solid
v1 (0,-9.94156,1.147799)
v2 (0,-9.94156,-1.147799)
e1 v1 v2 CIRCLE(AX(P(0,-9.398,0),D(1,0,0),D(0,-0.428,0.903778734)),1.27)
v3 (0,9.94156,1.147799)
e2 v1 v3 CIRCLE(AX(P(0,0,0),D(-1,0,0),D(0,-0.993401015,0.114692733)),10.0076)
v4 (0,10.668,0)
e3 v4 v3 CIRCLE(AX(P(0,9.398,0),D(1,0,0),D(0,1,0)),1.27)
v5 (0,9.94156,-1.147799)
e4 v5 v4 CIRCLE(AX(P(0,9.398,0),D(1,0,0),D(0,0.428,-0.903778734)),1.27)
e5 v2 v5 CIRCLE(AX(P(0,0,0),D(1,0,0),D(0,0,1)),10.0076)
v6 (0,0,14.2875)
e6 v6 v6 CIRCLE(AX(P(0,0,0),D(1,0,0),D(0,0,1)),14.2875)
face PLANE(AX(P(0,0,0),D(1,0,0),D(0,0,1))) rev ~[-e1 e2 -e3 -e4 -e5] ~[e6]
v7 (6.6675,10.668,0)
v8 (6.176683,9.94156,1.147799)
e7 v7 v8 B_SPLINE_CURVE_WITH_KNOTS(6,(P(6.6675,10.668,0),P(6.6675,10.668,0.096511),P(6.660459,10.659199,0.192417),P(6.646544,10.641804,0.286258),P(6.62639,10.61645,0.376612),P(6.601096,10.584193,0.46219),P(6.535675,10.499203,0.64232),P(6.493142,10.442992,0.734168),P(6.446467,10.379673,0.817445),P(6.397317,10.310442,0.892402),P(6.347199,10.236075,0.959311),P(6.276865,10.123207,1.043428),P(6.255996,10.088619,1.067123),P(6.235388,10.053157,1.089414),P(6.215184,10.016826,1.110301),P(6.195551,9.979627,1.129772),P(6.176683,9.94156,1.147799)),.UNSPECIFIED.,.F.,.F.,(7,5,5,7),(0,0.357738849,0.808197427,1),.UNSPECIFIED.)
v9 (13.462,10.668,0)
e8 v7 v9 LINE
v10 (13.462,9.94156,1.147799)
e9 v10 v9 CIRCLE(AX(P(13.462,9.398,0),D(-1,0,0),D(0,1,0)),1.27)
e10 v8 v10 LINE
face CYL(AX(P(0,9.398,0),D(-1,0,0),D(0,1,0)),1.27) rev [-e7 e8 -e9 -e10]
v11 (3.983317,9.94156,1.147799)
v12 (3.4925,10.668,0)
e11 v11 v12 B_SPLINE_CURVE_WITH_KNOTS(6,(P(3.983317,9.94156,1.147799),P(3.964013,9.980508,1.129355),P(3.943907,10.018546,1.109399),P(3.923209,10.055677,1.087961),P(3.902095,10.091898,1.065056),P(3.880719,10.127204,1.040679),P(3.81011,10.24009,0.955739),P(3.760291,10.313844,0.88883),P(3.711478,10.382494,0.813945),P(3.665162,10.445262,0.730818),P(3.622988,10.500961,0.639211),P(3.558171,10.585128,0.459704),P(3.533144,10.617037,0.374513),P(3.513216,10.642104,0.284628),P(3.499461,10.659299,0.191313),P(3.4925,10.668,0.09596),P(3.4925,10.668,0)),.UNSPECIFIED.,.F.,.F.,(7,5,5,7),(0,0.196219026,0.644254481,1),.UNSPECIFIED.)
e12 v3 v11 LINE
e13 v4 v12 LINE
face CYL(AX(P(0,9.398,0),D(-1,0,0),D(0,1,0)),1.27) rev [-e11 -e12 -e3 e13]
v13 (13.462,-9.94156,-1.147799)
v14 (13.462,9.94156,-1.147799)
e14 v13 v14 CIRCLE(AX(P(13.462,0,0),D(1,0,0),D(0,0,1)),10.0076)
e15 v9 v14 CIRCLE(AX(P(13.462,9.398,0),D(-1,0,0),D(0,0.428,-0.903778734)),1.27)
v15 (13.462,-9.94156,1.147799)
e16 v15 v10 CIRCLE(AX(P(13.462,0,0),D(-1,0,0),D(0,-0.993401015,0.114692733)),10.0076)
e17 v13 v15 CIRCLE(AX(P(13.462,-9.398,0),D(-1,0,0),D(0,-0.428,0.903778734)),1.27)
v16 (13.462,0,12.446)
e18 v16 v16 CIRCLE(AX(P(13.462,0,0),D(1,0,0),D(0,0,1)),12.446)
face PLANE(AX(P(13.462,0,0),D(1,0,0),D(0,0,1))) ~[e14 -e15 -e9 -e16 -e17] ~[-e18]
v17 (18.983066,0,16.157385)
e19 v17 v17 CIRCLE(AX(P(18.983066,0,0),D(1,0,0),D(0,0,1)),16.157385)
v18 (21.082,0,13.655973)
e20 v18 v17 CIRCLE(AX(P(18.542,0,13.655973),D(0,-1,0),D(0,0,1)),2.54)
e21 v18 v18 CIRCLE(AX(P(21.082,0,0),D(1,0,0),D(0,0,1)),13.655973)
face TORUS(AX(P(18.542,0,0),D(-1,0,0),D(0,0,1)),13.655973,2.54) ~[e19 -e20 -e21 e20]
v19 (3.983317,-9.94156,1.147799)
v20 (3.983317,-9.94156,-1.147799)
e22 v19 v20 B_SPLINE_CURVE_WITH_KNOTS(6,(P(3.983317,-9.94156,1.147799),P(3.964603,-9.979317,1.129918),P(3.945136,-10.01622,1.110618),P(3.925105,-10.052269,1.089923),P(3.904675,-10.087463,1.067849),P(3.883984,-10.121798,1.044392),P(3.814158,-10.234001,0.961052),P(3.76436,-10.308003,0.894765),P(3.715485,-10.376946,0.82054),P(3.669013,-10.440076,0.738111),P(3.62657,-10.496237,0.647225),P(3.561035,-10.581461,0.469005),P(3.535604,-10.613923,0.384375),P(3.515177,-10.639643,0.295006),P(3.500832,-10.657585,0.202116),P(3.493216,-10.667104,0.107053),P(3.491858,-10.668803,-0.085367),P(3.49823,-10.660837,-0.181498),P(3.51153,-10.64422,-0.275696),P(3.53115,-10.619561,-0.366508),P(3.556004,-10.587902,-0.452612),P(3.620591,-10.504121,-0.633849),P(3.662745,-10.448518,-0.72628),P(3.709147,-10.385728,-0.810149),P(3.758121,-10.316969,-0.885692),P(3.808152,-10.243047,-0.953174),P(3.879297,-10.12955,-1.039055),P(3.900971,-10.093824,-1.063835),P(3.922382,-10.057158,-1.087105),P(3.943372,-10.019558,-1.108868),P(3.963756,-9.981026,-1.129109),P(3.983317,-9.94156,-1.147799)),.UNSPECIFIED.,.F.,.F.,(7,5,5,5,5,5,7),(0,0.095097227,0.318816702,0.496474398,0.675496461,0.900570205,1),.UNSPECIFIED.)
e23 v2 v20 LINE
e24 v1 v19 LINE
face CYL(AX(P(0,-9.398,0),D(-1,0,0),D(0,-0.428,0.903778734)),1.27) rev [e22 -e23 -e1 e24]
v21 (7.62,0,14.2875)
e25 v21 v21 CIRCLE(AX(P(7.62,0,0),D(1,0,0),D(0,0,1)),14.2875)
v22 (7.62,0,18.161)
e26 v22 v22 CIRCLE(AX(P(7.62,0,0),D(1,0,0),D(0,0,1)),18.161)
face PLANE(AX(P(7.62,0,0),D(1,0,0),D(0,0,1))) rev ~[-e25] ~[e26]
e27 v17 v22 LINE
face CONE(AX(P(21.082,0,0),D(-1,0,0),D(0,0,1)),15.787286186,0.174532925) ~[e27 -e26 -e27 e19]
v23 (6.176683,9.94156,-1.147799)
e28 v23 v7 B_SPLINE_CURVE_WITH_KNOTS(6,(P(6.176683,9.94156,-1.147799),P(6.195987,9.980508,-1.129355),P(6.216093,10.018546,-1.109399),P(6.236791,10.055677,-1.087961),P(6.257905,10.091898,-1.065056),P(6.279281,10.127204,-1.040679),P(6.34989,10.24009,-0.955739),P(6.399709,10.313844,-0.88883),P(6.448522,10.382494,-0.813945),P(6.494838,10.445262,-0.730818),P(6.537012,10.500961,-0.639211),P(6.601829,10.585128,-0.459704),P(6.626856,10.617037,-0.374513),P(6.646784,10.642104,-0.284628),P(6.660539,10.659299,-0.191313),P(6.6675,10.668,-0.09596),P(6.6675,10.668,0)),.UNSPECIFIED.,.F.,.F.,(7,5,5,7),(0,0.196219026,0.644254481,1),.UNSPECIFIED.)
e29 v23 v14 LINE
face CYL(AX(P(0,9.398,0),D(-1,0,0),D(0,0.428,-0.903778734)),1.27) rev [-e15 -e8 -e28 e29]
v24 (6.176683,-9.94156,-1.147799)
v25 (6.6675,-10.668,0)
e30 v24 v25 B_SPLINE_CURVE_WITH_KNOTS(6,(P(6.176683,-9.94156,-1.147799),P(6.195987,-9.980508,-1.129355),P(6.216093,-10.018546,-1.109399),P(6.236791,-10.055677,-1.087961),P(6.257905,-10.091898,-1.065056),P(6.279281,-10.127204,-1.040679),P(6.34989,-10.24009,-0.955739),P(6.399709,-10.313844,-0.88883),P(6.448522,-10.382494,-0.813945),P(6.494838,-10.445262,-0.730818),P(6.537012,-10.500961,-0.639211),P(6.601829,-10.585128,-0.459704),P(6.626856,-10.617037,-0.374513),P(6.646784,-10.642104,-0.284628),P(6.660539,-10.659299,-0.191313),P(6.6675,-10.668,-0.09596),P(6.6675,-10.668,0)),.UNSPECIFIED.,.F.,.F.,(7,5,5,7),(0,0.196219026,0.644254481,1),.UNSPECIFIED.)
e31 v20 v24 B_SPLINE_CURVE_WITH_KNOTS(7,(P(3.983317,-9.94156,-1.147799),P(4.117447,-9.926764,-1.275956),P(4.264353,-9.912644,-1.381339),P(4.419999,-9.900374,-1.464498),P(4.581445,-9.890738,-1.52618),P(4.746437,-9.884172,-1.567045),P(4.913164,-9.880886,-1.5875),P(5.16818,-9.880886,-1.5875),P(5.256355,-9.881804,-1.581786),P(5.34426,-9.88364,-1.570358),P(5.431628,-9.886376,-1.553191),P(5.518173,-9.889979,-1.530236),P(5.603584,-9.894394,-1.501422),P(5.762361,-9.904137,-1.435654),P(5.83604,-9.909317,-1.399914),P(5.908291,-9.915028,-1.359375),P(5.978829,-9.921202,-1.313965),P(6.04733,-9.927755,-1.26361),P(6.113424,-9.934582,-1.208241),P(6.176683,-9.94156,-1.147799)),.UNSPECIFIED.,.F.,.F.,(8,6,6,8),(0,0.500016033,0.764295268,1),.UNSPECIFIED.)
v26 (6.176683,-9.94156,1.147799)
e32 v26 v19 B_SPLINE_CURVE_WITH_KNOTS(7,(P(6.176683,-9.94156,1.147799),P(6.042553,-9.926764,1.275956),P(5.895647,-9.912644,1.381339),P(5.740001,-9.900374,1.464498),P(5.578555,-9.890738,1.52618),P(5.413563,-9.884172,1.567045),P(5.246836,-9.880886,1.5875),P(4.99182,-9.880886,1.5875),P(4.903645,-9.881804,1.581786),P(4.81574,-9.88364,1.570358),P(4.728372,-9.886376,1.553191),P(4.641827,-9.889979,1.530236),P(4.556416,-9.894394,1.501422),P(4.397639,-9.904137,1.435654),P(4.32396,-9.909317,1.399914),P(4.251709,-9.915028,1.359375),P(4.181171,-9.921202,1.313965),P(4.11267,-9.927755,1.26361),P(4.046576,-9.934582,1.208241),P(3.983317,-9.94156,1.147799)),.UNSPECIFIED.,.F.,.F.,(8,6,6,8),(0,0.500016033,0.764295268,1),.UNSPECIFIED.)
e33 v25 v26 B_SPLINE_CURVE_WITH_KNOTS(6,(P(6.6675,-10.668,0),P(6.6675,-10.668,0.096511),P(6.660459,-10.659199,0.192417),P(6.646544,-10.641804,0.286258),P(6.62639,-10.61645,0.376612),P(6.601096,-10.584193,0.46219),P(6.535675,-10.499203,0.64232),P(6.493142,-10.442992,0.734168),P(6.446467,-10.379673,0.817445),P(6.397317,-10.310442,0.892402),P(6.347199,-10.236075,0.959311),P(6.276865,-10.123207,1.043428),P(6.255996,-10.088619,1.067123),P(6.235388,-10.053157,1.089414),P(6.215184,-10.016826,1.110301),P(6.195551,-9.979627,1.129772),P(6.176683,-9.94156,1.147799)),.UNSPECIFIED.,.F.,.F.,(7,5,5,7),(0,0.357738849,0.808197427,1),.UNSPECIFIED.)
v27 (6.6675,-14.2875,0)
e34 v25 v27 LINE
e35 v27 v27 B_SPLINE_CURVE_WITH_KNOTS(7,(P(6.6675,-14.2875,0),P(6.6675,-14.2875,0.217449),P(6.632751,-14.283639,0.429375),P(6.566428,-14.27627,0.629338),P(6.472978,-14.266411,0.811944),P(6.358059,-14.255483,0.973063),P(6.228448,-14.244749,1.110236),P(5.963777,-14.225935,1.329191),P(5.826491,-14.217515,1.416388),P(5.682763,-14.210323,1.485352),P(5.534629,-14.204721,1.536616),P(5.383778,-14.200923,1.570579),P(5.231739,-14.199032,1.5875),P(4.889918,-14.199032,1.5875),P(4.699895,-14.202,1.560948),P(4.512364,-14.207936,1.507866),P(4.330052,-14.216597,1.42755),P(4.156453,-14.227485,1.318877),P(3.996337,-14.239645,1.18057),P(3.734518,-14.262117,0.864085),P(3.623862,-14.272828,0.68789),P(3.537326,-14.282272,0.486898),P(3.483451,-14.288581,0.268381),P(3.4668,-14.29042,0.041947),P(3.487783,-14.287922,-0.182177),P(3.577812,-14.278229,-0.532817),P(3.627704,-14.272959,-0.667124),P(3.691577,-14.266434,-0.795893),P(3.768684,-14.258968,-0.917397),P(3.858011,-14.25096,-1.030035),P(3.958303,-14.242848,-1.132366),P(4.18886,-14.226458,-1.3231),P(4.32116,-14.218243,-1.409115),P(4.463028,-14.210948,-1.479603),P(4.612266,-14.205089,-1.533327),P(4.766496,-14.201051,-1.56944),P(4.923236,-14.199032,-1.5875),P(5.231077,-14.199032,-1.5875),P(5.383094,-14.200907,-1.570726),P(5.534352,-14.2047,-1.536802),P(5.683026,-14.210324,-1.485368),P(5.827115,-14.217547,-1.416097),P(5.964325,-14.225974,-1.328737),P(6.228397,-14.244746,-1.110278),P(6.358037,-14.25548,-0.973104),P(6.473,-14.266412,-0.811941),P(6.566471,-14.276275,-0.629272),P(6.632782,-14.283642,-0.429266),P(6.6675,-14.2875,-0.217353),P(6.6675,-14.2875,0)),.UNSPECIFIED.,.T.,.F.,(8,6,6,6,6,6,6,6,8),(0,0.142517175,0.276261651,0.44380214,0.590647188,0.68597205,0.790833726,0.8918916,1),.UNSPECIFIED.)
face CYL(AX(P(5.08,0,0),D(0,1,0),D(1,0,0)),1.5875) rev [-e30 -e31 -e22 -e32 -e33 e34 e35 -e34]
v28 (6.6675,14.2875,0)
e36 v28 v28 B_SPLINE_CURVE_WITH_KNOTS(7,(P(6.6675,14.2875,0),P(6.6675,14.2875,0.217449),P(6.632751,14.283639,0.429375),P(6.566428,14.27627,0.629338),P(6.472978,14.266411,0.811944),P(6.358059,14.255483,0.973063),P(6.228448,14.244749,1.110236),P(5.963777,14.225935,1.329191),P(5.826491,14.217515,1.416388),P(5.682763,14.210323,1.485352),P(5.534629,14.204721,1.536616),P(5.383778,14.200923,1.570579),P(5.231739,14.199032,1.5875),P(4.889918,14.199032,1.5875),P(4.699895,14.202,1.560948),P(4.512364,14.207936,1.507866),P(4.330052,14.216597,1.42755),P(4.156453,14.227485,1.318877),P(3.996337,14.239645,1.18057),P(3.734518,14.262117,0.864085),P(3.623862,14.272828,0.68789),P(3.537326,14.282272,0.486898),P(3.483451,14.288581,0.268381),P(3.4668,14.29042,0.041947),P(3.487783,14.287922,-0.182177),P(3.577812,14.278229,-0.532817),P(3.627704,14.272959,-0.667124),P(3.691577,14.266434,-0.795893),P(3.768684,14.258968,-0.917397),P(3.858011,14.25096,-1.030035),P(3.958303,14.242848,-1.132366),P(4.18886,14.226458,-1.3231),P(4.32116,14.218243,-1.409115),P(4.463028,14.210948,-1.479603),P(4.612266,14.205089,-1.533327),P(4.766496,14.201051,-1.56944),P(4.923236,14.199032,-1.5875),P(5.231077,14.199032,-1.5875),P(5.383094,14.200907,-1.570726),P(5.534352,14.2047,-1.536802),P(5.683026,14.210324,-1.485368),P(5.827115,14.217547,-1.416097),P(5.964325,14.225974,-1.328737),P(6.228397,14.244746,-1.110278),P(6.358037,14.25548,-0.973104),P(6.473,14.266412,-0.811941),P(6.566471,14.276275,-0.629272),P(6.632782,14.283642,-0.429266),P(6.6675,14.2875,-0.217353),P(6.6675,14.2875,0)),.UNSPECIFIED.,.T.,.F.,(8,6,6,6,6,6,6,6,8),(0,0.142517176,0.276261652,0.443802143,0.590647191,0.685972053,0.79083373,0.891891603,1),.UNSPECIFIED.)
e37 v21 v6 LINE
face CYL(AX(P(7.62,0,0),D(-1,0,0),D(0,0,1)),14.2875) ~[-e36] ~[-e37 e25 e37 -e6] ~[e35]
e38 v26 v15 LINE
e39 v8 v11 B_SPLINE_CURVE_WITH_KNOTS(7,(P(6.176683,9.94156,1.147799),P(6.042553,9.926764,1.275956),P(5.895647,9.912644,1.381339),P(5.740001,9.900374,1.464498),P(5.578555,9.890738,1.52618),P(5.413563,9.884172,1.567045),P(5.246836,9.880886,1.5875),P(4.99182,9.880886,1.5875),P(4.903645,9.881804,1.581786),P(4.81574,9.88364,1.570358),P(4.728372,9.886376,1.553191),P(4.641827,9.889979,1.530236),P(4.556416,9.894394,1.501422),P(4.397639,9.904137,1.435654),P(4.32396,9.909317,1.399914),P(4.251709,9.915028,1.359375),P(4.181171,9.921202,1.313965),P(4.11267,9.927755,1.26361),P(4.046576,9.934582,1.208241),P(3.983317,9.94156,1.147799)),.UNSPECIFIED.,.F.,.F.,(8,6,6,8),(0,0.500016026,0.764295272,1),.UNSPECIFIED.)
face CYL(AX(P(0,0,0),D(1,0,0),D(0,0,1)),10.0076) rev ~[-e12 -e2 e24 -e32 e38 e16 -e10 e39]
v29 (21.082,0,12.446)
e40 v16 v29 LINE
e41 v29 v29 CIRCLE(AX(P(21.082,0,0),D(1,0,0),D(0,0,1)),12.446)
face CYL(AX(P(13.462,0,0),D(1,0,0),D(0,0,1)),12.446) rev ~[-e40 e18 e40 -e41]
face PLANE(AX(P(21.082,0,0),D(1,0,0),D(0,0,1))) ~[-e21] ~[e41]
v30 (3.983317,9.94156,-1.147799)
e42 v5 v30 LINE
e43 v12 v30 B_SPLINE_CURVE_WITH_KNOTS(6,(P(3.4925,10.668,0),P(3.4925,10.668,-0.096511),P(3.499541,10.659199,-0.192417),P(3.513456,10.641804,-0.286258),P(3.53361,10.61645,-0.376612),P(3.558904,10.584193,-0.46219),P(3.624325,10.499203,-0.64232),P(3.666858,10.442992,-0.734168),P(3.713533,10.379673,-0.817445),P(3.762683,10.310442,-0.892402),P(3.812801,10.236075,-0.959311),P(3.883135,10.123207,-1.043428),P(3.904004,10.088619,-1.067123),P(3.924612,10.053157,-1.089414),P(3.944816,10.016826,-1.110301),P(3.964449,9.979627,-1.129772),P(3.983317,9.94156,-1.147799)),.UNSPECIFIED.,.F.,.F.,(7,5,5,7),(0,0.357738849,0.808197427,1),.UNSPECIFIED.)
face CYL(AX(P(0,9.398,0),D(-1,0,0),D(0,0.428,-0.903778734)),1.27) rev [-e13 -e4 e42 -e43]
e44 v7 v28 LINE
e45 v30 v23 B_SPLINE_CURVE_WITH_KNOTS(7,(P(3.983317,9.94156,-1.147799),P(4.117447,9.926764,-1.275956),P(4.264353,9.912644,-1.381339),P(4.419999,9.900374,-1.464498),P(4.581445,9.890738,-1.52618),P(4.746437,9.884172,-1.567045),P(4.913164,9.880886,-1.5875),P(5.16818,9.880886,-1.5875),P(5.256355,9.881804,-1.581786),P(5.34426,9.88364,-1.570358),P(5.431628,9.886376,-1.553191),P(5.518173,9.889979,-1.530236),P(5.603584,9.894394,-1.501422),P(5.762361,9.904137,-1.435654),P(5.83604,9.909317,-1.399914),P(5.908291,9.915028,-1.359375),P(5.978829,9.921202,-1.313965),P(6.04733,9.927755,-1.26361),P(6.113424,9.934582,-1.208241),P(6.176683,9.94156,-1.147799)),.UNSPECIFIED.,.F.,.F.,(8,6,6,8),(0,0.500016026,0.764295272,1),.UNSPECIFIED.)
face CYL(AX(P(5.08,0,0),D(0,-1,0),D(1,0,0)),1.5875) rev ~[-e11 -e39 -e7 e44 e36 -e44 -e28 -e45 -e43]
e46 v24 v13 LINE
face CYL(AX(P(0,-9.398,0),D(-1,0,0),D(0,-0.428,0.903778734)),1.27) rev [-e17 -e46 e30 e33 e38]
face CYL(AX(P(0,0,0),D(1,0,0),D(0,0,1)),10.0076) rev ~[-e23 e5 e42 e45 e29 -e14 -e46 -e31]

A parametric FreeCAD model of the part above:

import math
import FreeCAD as App
import Part
import Sketcher

V = App.Vector
Q = App.Units.Quantity


def edges_at(feature, points):
    """Names of the edges that pass closest to the given points."""
    edges = feature.Shape.Edges
    near = lambda p: min(range(len(edges)), key=lambda i: edges[i].distToShape(Part.Vertex(*p))[0])
    return sorted({f"Edge{near(p) + 1}" for p in points})

doc = App.newDocument("Part")
params = doc.addObject("Spreadsheet::Sheet", "Params")
for row, (alias, value) in enumerate([
    ("sketch1_width", "0.3 in"),
    ("sketch1_width2", "0.53 in"),
    ("sketch1_height", "0.096 in"),
    ("revolution_angle", "360 deg"),
    ("fillet_radius", "0.1 in"),
    ("sketch2_radius", "0.05 in"),
    ("sketch2_radius2", "0.394 in"),
    ("sketch3_diameter", "0.125 in"),
], start=1):
    params.set(f"A{row}", alias)
    params.set(f"B{row}", "=" + value)
    params.setAlias(f"B{row}", alias)

body = doc.addObject("PartDesign::Body", "Body")

sketch1 = body.newObject("Sketcher::SketchObject", "Sketch")
sketch1.AttachmentSupport = (doc.getObject("XZ_Plane"), [""])
sketch1.MapMode = "FlatFace"
sketch1.addGeometry(Part.LineSegment(V(7.6, 18.2, 0), V(7.6, 14.3, 0)), False)
sketch1.addGeometry(Part.LineSegment(V(7.6, 14.3, 0), V(0, 14.3, 0)), False)
sketch1.addGeometry(Part.LineSegment(V(0, 14.3, 0), V(0, 10, 0)), False)
sketch1.addGeometry(Part.LineSegment(V(0, 10, 0), V(13.5, 10, 0)), False)
sketch1.addGeometry(Part.LineSegment(V(13.5, 10, 0), V(13.5, 12.4, 0)), False)
sketch1.addGeometry(Part.LineSegment(V(13.5, 12.4, 0), V(21.1, 12.4, 0)), False)
sketch1.addGeometry(Part.LineSegment(V(21.1, 12.4, 0), V(21.1, 15.8, 0)), False)
sketch1.addGeometry(Part.LineSegment(V(21.1, 15.8, 0), V(7.6, 18.2, 0)), False)
sketch1.addConstraint(Sketcher.Constraint("Coincident", 0, 2, 1, 1))
sketch1.addConstraint(Sketcher.Constraint("Coincident", 1, 2, 2, 1))
sketch1.addConstraint(Sketcher.Constraint("Coincident", 2, 2, 3, 1))
sketch1.addConstraint(Sketcher.Constraint("Coincident", 3, 2, 4, 1))
sketch1.addConstraint(Sketcher.Constraint("Coincident", 4, 2, 5, 1))
sketch1.addConstraint(Sketcher.Constraint("Coincident", 5, 2, 6, 1))
sketch1.addConstraint(Sketcher.Constraint("Coincident", 6, 2, 7, 1))
sketch1.addConstraint(Sketcher.Constraint("Coincident", 7, 2, 0, 1))
sketch1.addConstraint(Sketcher.Constraint("Vertical", 0))
sketch1.addConstraint(Sketcher.Constraint("Horizontal", 1))
sketch1.addConstraint(Sketcher.Constraint("Vertical", 2))
sketch1.addConstraint(Sketcher.Constraint("Horizontal", 3))
sketch1.addConstraint(Sketcher.Constraint("Vertical", 4))
sketch1.addConstraint(Sketcher.Constraint("Horizontal", 5))
sketch1.addConstraint(Sketcher.Constraint("Vertical", 6))
sketch1.addConstraint(Sketcher.Constraint("PointOnObject", 1, 2, -2))
sketch1.addConstraint(Sketcher.Constraint("Equal", 1, 5))
sketch1.addConstraint(Sketcher.Constraint("DistanceX", 1, 2, 1, 1, Q("0.3 in")))
sketch1.addConstraint(Sketcher.Constraint("Angle", 7, Q("170 deg")))
sketch1.addConstraint(Sketcher.Constraint("DistanceX", 3, 1, 3, 2, Q("0.53 in")))
sketch1.addConstraint(Sketcher.Constraint("DistanceY", 4, 1, 4, 2, Q("0.096 in")))
sketch1.addConstraint(Sketcher.Constraint("DistanceY", -1, 1, 4, 2, Q("0.49 in")))
sketch1.addConstraint(Sketcher.Constraint("DistanceY", 0, 2, 0, 1, Q("0.1525 in")))
sketch1.addConstraint(Sketcher.Constraint("DistanceY", 2, 2, 2, 1, Q("0.1685 in")))
sketch1.setExpression("Constraints[17]", "Params.sketch1_width")
sketch1.setExpression("Constraints[19]", "Params.sketch1_width2")
sketch1.setExpression("Constraints[20]", "Params.sketch1_height")
revolution = body.newObject("PartDesign::Revolution", "Revolution")
revolution.Profile = sketch1
revolution.ReferenceAxis = (sketch1, ["H_Axis"])
revolution.setExpression("Angle", "Params.revolution_angle")
doc.recompute()

fillet = body.newObject("PartDesign::Fillet", "Fillet")
fillet.Base = (revolution, edges_at(revolution, [(21.082, 0, -15.787)]))
fillet.setExpression("Radius", "Params.fillet_radius")

sketch2 = body.newObject("Sketcher::SketchObject", "Sketch001")
sketch2.AttachmentSupport = (doc.getObject("YZ_Plane"), [""])
sketch2.MapMode = "FlatFace"
sketch2.addGeometry(Part.ArcOfCircle(Part.Circle(V(0, 0, 0), V(0, 0, 1), 10), math.radians(173.41), math.radians(186.59)), False)
sketch2.addGeometry(Part.ArcOfCircle(Part.Circle(V(-9.4, 0, 0), V(0, 0, 1), 1.3), math.radians(115), math.radians(245)), False)
sketch2.addGeometry(Part.ArcOfCircle(Part.Circle(V(0, 0, 0), V(0, 0, 1), 10), math.radians(0), math.radians(6.59)), False)
sketch2.addGeometry(Part.ArcOfCircle(Part.Circle(V(0, 0, 0), V(0, 0, 1), 10), math.radians(-6.59), math.radians(0)), False)
sketch2.addGeometry(Part.ArcOfCircle(Part.Circle(V(9.4, 0, 0), V(0, 0, 1), 1.3), math.radians(-65), math.radians(0)), False)
sketch2.addGeometry(Part.ArcOfCircle(Part.Circle(V(9.4, 0, 0), V(0, 0, 1), 1.3), math.radians(0), math.radians(65)), False)
sketch2.addConstraint(Sketcher.Constraint("Coincident", 0, 1, 1, 1))
sketch2.addConstraint(Sketcher.Constraint("Coincident", 1, 2, 0, 2))
sketch2.addConstraint(Sketcher.Constraint("Tangent", 2, 1, 3, 2))
sketch2.addConstraint(Sketcher.Constraint("Coincident", 3, 1, 4, 1))
sketch2.addConstraint(Sketcher.Constraint("Tangent", 4, 2, 5, 1))
sketch2.addConstraint(Sketcher.Constraint("Coincident", 5, 2, 2, 2))
sketch2.addConstraint(Sketcher.Constraint("Coincident", 0, 3, -1, 1))
sketch2.addConstraint(Sketcher.Constraint("Coincident", 2, 3, -1, 1))
sketch2.addConstraint(Sketcher.Constraint("Equal", 0, 2))
sketch2.addConstraint(Sketcher.Constraint("Equal", 2, 3))
sketch2.addConstraint(Sketcher.Constraint("Equal", 1, 4))
sketch2.addConstraint(Sketcher.Constraint("Equal", 4, 5))
sketch2.addConstraint(Sketcher.Constraint("Symmetric", 1, 3, 4, 3, -1, 1))
sketch2.addConstraint(Sketcher.Constraint("PointOnObject", 1, 3, -1))
sketch2.addConstraint(Sketcher.Constraint("PointOnObject", 2, 1, -1))
sketch2.addConstraint(Sketcher.Constraint("PointOnObject", 4, 2, -1))
sketch2.addConstraint(Sketcher.Constraint("Radius", 1, Q("0.05 in")))
sketch2.addConstraint(Sketcher.Constraint("Radius", 0, Q("0.394 in")))
sketch2.addConstraint(Sketcher.Constraint("DistanceX", 1, 3, -1, 1, Q("0.37 in")))
sketch2.setExpression("Constraints[16]", "Params.sketch2_radius")
sketch2.setExpression("Constraints[17]", "Params.sketch2_radius2")
pocket1 = body.newObject("PartDesign::Pocket", "Pocket")
pocket1.Profile = sketch2
pocket1.Type = "ThroughAll"
pocket1.Reversed = True

sketch3 = body.newObject("Sketcher::SketchObject", "Sketch002")
sketch3.AttachmentSupport = (doc.getObject("XZ_Plane"), [""])
sketch3.MapMode = "FlatFace"
sketch3.addGeometry(Part.Circle(V(5.1, 0, 0), V(0, 0, 1), 1.6), False)
sketch3.addConstraint(Sketcher.Constraint("PointOnObject", 0, 3, -1))
sketch3.addConstraint(Sketcher.Constraint("Diameter", 0, Q("0.125 in")))
sketch3.addConstraint(Sketcher.Constraint("DistanceX", -1, 1, 0, 3, Q("0.2 in")))
sketch3.setExpression("Constraints[1]", "Params.sketch3_diameter")
pocket2 = body.newObject("PartDesign::Pocket", "Pocket001")
pocket2.Profile = sketch3
pocket2.Type = "ThroughAll"
pocket2.Midplane = True

doc.recompute()
